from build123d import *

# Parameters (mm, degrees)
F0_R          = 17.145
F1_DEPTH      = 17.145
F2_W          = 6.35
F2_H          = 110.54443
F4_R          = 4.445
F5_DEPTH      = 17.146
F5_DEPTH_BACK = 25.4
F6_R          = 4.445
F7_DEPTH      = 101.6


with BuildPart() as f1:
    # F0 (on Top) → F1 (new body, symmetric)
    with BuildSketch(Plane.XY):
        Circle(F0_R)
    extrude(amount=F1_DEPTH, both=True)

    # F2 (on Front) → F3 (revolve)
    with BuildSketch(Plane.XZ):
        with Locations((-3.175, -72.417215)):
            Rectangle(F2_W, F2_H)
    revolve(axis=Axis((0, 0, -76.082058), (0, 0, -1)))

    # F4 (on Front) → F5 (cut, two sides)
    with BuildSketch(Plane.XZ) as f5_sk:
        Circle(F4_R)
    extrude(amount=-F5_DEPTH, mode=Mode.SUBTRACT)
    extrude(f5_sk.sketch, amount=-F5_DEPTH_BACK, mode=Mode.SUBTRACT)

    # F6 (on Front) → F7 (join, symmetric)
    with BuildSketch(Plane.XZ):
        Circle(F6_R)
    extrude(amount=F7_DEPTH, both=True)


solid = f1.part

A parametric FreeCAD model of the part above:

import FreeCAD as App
import Part
import Sketcher
from FreeCAD import Vector
Q = App.Units.Quantity


def add_polygon(sketch, points):
    """Adds a closed chain of lines whose ends are joined by coincident constraints."""
    first, n = sketch.GeometryCount, len(points)
    for a, b in zip(points, points[1:] + points[:1]):
        sketch.addGeometry(Part.LineSegment(App.Vector(*a, 0), App.Vector(*b, 0)), False)
    for i in range(n):
        sketch.addConstraint(Sketcher.Constraint("Coincident", first + i, 2, first + (i + 1) % n, 1))

doc = App.newDocument("Part")
body = doc.addObject("PartDesign::Body", "Body")

# Sketch on XY plane
sketch1 = body.newObject("Sketcher::SketchObject", "Sketch")
sketch1.AttachmentSupport = (doc.getObject("XY_Plane"), [""])
sketch1.MapMode = "FlatFace"
sketch1.addGeometry(Part.Circle(Vector(0, 0, 0), Vector(0, 0, 1), 17), False)
sketch1.addConstraint([
    Sketcher.Constraint("Coincident", 0, 3, -1, 1),
    Sketcher.Constraint("Diameter", 0, Q("1.35 in")),
])
pad1 = body.newObject("PartDesign::Pad", "Pad")
pad1.Profile = sketch1
pad1.Length = Q("1.35 in")
pad1.Midplane = True

# Sketch on XZ plane
sketch2 = body.newObject("Sketcher::SketchObject", "Sketch001")
sketch2.AttachmentSupport = (doc.getObject("XZ_Plane"), [""])
sketch2.MapMode = "FlatFace"
add_polygon(sketch2, [(-6, -17), (-6, -128), (0, -128), (0, -17)])  # lines 0-3
sketch2.addConstraint([
    Sketcher.Constraint("Vertical", 0),
    Sketcher.Constraint("Horizontal", 1),
    Sketcher.Constraint("Vertical", 2),
    Sketcher.Constraint("Horizontal", 3),
    Sketcher.Constraint("PointOnObject", 1, 2, -2),
    Sketcher.Constraint("DistanceX", 1, 1, 1, 2, Q("0.25 in")),
    Sketcher.Constraint("DistanceY", 2, 2, -1, 1, Q("0.675 in")),
    Sketcher.Constraint("DistanceY", 0, 2, 0, 1, Q("110.54443 mm")),
])
revolution = body.newObject("PartDesign::Revolution", "Revolution")
revolution.Profile = sketch2
revolution.ReferenceAxis = (sketch2, ["V_Axis"])
revolution.Angle = 360

# Sketch on XZ plane
sketch3 = body.newObject("Sketcher::SketchObject", "Sketch002")
sketch3.AttachmentSupport = (doc.getObject("XZ_Plane"), [""])
sketch3.MapMode = "FlatFace"
sketch3.addGeometry(Part.Circle(Vector(0, 0, 0), Vector(0, 0, 1), 4.4), False)
sketch3.addConstraint([
    Sketcher.Constraint("Coincident", 0, 3, -1, 1),
    Sketcher.Constraint("Diameter", 0, Q("0.35 in")),
])
pocket1 = body.newObject("PartDesign::Pocket", "Pocket")
pocket1.Profile = sketch3
pocket1.Length = 17.146
pocket2 = body.newObject("PartDesign::Pocket", "Pocket001")
pocket2.Profile = sketch3
pocket2.Length = Q("1 in")

# Sketch on XZ plane
sketch4 = body.newObject("Sketcher::SketchObject", "Sketch003")
sketch4.AttachmentSupport = (doc.getObject("XZ_Plane"), [""])
sketch4.MapMode = "FlatFace"
sketch4.addGeometry(Part.Circle(Vector(0, 0, 0), Vector(0, 0, 1), 4.4), False)
sketch4.addConstraint([
    Sketcher.Constraint("Coincident", 0, 3, -1, 1),
    Sketcher.Constraint("Diameter", 0, Q("0.35 in")),
])
pad2 = body.newObject("PartDesign::Pad", "Pad001")
pad2.Profile = sketch4
pad2.Length = Q("8 in")
pad2.Midplane = True

doc.recompute()
